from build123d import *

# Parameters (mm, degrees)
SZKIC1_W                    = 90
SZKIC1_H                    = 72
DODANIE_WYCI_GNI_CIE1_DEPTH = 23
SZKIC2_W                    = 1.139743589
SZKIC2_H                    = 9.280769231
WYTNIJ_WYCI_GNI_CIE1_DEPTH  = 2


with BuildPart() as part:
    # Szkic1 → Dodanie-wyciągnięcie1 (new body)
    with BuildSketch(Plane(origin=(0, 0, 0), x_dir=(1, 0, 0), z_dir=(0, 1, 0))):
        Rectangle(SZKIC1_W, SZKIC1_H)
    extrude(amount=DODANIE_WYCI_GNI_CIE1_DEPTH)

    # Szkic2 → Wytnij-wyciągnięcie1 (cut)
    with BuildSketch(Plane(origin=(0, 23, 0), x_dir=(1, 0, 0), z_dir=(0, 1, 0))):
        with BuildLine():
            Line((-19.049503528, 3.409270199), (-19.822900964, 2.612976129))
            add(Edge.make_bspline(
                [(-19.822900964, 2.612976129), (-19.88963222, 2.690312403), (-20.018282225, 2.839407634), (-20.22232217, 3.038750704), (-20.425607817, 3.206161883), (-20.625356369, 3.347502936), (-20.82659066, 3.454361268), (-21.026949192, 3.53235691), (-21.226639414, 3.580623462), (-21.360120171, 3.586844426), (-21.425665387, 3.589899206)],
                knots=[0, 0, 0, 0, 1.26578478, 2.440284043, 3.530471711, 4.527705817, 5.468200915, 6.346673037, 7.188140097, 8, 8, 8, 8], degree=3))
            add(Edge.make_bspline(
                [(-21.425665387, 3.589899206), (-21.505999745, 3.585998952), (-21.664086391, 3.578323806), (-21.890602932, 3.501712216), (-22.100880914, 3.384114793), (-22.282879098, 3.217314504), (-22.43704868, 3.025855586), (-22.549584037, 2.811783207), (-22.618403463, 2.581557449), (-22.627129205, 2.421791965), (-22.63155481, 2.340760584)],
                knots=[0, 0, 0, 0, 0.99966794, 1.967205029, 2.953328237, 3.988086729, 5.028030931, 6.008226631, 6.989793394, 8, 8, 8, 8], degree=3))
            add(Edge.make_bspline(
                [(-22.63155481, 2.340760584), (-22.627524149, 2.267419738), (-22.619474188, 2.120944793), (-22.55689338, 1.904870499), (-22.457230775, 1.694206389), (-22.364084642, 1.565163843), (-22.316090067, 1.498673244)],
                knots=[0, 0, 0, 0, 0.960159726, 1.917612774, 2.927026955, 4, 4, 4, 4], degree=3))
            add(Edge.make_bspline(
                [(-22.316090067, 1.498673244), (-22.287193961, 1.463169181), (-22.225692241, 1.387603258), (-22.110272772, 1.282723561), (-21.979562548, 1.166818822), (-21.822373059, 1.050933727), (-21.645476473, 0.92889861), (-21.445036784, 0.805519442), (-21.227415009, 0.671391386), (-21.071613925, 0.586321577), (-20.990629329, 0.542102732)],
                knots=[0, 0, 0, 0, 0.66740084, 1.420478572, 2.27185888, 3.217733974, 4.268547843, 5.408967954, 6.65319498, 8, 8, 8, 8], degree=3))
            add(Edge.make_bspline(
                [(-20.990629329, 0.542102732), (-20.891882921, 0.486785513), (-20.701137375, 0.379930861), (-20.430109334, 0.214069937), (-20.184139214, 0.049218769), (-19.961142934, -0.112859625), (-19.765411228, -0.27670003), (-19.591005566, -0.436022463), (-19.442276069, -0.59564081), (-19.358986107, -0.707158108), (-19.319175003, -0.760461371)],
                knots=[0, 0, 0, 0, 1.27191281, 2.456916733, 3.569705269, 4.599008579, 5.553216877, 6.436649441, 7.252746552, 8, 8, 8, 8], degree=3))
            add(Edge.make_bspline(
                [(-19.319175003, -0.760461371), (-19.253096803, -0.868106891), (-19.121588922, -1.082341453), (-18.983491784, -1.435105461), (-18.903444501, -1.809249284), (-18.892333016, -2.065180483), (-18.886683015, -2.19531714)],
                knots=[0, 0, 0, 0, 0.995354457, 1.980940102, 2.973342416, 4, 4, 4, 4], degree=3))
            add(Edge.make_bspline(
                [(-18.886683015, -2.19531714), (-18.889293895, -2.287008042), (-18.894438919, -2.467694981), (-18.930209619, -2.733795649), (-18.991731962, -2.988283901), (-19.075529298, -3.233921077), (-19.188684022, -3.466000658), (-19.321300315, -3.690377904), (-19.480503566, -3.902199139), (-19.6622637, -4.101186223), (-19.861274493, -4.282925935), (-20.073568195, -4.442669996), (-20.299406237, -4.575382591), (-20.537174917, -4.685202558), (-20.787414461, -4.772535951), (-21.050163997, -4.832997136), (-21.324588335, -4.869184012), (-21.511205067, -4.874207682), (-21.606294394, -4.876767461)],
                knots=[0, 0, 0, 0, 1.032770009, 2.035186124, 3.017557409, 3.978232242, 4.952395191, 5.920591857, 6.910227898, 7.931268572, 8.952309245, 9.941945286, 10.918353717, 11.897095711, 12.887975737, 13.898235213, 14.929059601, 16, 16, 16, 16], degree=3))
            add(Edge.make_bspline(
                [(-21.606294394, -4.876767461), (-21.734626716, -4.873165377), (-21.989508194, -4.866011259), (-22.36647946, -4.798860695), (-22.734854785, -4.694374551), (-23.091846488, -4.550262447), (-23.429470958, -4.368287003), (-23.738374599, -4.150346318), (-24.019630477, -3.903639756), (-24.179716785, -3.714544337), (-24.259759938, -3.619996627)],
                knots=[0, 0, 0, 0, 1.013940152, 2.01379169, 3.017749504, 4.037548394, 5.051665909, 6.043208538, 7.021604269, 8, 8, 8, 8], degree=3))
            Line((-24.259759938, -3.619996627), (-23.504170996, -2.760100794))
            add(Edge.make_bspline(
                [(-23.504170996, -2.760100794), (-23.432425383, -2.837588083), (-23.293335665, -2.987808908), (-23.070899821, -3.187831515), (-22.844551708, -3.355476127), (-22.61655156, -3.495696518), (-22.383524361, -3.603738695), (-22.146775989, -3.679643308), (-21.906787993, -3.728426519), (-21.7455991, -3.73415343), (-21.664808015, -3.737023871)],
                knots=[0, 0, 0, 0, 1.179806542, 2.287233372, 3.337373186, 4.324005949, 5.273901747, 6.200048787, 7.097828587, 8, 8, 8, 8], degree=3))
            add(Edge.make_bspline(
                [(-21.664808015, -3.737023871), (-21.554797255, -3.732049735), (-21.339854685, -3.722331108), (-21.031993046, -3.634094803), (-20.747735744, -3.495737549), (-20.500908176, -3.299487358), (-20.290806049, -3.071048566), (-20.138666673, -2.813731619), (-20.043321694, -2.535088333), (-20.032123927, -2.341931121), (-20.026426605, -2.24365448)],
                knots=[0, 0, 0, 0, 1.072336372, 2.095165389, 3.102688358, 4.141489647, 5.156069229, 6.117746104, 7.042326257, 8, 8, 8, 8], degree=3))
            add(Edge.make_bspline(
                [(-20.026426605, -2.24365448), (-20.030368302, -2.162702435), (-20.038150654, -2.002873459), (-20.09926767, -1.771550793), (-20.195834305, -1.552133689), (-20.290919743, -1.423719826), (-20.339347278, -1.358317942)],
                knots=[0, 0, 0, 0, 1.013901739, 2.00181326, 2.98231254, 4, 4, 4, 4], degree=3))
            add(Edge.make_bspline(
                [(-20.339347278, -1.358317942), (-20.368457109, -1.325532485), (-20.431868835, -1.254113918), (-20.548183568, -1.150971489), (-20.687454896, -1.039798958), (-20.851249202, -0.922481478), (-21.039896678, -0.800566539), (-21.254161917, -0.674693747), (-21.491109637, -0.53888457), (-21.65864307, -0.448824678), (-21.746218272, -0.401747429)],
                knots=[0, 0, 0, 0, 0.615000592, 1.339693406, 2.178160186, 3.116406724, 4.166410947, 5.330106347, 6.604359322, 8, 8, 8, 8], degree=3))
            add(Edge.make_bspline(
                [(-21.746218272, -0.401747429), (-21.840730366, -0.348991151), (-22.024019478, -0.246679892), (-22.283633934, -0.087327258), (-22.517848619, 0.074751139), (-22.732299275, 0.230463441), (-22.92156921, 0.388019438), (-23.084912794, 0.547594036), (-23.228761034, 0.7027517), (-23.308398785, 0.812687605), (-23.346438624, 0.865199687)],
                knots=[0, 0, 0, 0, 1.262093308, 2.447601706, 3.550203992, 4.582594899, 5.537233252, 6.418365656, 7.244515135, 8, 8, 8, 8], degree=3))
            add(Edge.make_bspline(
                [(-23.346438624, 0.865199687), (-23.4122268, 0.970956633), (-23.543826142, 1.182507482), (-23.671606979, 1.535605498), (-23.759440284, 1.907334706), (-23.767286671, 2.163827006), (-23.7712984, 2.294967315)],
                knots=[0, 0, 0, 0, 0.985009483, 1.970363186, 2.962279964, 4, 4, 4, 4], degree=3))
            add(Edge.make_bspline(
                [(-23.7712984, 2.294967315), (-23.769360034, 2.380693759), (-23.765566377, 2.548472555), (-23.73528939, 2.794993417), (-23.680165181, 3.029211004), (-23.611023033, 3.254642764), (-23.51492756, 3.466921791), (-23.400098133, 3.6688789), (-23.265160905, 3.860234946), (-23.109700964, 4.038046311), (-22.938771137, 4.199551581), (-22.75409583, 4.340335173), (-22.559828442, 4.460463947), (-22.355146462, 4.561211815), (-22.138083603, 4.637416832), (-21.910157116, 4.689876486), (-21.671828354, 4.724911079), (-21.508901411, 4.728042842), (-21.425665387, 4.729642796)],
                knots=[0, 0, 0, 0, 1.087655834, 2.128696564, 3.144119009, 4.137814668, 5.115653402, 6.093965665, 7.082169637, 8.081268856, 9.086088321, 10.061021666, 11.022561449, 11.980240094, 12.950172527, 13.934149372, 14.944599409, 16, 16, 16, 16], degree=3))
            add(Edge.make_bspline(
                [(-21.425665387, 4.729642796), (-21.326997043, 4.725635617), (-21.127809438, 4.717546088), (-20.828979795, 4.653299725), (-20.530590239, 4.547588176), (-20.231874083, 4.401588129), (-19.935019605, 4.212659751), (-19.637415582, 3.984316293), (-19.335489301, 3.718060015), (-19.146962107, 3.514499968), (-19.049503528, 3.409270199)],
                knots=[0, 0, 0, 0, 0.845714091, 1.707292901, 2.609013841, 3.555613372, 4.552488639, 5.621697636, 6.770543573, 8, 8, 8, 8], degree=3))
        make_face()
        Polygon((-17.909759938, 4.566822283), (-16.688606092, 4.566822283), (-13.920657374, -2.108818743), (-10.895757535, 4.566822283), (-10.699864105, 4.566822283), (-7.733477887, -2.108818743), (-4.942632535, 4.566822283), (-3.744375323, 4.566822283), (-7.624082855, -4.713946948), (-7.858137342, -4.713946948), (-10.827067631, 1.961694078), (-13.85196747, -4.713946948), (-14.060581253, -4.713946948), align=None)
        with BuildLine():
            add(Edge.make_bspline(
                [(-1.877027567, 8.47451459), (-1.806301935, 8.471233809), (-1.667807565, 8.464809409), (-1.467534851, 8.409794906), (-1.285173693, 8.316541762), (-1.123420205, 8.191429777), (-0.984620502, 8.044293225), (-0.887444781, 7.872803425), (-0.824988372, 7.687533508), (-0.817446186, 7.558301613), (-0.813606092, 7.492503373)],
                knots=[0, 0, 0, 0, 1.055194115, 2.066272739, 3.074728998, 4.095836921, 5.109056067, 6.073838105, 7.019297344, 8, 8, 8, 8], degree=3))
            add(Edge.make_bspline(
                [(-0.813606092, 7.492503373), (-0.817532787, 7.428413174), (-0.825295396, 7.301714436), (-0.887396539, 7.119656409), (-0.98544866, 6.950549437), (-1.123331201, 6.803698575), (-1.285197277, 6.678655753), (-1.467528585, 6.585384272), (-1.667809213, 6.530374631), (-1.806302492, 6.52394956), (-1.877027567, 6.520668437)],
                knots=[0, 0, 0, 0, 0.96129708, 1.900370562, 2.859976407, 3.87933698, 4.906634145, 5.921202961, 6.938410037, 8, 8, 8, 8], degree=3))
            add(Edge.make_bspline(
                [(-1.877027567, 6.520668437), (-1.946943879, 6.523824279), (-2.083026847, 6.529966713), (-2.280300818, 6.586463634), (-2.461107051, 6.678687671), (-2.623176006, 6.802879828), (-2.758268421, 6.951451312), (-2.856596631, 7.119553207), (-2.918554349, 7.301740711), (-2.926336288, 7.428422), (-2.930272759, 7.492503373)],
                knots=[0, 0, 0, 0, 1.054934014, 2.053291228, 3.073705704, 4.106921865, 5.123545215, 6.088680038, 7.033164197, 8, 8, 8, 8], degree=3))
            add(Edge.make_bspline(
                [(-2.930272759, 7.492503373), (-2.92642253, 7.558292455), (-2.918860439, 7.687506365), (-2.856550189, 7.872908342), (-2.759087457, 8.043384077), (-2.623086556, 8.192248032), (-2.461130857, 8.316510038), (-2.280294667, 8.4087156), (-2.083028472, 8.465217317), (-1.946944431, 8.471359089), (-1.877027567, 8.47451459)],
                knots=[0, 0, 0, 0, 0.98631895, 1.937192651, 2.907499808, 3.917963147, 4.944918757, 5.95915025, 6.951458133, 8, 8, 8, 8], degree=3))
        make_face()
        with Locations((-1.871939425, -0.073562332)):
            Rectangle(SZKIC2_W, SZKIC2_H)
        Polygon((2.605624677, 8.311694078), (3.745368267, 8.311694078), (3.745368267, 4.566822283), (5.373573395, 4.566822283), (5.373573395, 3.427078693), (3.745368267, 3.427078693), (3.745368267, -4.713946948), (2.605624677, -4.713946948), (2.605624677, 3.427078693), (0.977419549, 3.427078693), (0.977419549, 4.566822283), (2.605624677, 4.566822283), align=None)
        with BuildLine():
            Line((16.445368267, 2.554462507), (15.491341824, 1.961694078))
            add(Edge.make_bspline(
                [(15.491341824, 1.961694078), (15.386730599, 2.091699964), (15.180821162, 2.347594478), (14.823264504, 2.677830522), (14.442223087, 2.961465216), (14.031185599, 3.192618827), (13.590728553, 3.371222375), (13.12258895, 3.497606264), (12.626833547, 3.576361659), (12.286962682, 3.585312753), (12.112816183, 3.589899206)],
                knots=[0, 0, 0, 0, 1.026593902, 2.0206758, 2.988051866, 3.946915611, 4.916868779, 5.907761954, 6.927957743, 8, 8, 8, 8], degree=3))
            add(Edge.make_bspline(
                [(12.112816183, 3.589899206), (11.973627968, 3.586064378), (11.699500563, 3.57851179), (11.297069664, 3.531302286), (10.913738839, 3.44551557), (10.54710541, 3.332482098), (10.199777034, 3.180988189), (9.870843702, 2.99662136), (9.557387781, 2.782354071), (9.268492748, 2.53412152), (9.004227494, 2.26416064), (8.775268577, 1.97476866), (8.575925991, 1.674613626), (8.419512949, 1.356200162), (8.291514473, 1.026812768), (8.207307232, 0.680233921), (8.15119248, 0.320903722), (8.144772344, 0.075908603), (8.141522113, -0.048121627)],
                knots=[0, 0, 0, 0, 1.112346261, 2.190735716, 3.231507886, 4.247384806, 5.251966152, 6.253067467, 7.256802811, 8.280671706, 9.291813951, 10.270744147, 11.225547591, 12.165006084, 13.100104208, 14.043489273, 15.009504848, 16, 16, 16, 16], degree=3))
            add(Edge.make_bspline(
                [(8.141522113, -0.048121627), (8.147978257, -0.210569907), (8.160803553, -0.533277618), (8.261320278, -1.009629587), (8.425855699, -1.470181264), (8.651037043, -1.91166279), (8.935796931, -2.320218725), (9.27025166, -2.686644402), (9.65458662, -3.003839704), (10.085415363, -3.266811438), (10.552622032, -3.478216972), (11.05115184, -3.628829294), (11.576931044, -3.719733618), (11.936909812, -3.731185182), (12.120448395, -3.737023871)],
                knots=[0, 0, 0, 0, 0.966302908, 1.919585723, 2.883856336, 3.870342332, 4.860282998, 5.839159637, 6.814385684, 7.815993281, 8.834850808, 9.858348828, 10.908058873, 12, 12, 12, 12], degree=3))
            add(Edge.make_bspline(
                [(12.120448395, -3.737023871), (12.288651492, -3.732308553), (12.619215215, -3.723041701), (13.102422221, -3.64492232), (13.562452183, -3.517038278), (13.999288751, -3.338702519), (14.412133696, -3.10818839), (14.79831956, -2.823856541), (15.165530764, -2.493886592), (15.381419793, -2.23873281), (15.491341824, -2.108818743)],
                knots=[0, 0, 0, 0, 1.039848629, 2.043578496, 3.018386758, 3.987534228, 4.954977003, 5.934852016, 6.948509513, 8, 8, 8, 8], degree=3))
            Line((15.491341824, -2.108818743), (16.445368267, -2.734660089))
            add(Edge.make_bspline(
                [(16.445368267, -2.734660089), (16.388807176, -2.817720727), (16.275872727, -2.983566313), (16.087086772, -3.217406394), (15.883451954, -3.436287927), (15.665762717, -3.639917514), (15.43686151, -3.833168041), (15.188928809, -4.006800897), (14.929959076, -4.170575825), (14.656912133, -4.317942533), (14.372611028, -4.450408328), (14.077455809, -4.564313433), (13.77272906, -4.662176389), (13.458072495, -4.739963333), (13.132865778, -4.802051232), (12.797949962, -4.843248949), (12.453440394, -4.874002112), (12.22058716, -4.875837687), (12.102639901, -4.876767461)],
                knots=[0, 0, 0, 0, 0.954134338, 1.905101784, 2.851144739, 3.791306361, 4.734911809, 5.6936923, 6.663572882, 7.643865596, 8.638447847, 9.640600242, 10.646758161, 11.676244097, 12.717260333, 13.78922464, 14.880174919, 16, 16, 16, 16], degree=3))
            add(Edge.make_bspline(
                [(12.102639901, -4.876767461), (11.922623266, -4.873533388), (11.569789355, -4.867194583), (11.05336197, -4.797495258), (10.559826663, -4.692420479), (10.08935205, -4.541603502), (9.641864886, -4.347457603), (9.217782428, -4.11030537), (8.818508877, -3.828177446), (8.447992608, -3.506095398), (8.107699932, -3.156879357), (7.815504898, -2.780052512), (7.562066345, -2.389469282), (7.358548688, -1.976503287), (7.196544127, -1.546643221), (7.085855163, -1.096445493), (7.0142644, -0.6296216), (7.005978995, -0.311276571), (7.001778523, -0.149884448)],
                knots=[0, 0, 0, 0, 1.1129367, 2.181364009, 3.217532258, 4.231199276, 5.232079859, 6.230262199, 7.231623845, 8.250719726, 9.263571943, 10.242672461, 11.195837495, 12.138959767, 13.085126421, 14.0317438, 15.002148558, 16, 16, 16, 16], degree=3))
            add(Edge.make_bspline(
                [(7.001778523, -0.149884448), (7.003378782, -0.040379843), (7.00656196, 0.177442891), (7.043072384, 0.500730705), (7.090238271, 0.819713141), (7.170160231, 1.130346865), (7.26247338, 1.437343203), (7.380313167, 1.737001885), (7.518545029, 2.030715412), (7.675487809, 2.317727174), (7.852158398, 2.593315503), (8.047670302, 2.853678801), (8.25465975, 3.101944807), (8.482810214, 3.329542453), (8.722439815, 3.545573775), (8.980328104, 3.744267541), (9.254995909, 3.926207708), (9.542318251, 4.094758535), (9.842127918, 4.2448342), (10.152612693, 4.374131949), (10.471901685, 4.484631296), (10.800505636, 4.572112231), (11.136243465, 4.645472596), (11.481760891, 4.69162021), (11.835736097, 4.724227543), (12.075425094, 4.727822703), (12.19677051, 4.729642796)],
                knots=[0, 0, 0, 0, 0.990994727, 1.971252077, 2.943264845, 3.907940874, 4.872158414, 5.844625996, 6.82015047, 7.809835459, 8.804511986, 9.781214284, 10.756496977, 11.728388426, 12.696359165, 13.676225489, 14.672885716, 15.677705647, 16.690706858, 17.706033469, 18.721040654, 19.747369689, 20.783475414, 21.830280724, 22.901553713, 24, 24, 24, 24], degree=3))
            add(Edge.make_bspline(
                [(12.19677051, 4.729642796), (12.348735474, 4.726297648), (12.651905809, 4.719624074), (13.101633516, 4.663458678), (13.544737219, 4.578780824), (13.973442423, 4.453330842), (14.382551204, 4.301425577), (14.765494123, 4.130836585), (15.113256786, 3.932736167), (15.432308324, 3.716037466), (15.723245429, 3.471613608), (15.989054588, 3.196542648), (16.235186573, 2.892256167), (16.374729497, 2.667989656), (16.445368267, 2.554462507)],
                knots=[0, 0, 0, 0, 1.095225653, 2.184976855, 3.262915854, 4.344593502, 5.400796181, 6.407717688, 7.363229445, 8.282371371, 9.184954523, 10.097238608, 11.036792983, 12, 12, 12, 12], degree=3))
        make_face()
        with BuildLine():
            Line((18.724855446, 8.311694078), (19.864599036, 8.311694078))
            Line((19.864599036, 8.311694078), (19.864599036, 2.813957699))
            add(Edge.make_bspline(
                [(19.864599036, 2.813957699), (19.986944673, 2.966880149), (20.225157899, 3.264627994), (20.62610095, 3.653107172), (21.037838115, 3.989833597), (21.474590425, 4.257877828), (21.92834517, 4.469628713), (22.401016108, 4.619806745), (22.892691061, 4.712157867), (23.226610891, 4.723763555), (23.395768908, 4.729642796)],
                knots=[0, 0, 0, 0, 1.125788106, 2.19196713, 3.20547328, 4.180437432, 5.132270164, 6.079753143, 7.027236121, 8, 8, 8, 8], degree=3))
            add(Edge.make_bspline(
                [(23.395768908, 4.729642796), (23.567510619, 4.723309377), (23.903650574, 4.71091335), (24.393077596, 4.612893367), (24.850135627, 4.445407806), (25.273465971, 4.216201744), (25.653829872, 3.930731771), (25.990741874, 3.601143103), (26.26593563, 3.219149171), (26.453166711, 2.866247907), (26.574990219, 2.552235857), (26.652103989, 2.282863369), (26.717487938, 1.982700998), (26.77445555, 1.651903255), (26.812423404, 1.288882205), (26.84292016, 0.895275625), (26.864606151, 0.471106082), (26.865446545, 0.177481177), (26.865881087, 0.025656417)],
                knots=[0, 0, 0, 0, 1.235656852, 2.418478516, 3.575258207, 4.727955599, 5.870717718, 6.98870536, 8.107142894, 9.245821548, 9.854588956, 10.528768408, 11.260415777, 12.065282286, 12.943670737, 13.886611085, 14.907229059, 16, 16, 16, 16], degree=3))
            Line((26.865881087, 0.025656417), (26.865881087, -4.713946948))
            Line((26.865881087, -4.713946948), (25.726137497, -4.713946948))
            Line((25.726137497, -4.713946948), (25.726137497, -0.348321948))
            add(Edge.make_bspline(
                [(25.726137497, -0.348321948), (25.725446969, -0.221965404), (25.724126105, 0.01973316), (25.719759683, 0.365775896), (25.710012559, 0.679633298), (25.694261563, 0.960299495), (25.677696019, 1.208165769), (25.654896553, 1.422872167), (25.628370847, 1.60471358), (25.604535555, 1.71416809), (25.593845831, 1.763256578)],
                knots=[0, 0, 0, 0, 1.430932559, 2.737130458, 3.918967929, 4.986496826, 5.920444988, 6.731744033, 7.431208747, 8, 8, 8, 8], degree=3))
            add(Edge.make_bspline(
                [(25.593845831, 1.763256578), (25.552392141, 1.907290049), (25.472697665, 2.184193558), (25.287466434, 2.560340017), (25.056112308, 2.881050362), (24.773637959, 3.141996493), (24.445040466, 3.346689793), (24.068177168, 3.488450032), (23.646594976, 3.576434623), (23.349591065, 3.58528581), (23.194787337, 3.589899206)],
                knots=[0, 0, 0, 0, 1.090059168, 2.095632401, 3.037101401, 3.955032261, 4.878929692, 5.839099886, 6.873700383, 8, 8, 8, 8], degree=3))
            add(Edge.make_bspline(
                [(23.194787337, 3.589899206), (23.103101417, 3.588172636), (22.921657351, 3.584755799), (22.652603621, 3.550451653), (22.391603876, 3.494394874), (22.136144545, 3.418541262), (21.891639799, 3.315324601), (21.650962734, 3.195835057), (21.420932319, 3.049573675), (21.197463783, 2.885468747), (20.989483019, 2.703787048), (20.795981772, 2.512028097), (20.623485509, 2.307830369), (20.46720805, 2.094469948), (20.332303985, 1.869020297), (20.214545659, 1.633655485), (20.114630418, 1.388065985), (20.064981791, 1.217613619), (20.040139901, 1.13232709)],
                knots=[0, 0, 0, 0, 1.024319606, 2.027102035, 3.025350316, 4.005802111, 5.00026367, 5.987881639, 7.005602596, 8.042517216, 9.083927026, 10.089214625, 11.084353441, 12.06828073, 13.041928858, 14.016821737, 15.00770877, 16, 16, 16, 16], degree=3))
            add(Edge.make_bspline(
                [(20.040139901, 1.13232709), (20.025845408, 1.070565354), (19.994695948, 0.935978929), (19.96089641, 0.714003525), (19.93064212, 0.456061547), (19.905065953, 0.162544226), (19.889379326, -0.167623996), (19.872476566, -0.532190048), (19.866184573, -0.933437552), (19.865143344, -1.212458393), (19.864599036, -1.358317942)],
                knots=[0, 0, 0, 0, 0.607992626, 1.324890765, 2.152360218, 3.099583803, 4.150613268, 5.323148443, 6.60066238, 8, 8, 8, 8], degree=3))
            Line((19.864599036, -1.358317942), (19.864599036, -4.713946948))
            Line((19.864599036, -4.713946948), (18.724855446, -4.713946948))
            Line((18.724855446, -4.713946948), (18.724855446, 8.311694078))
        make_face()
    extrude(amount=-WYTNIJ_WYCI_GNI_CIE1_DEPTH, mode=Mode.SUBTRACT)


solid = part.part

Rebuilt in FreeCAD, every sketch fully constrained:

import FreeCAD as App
import Part
import Sketcher

V = App.Vector
Q = App.Units.Quantity


def add_polygon(sketch, points):
    """Adds a closed chain of lines whose ends are joined by coincident constraints."""
    first, n = sketch.GeometryCount, len(points)
    for a, b in zip(points, points[1:] + points[:1]):
        sketch.addGeometry(Part.LineSegment(App.Vector(*a, 0), App.Vector(*b, 0)), False)
    for i in range(n):
        sketch.addConstraint(Sketcher.Constraint("Coincident", first + i, 2, first + (i + 1) % n, 1))

doc = App.newDocument("Part")
body = doc.addObject("PartDesign::Body", "Body")

sketch1 = doc.addObject("Sketcher::SketchObject", "Sketch")
body.addObject(sketch1)
sketch1.AttachmentSupport = (doc.XZ_Plane, [""])
sketch1.MapMode = "FlatFace"
add_polygon(sketch1, [(-45, -36), (-45, 36), (45, 36), (45, -36)])
sketch1.addConstraint(Sketcher.Constraint("Vertical", 0))
sketch1.addConstraint(Sketcher.Constraint("Horizontal", 1))
sketch1.addConstraint(Sketcher.Constraint("Vertical", 2))
sketch1.addConstraint(Sketcher.Constraint("Horizontal", 3))
sketch1.addConstraint(Sketcher.Constraint("Symmetric", 0, 2, 2, 2, -1, 1))
sketch1.addConstraint(Sketcher.Constraint("DistanceX", 1, 1, 1, 2, Q("90 mm")))
sketch1.addConstraint(Sketcher.Constraint("DistanceY", 0, 1, 0, 2, Q("72 mm")))
pad1 = doc.addObject("PartDesign::Pad", "Pad")
body.addObject(pad1)
pad1.Profile = sketch1
pad1.Length = 23
pad1.Reversed = True

sketch2 = doc.addObject("Sketcher::SketchObject", "Sketch001")
body.addObject(sketch2)
sketch2.AttachmentSupport = (doc.XZ_Plane, [""])
sketch2.MapMode = "FlatFace"
sketch2.AttachmentOffset = App.Placement(V(0, 0, -23), App.Rotation())
sketch2.addGeometry(Part.LineSegment(V(-19.822901, -2.612976, 0), V(-19.049504, -3.40927, 0)), False)
sketch2.addGeometry(Part.BSplineCurve([V(-21.425665, -4.729643, 0), V(-21.326997, -4.725636, 0), V(-21.127809, -4.717546, 0), V(-20.82898, -4.6533, 0), V(-20.53059, -4.547588, 0), V(-20.231874, -4.401588, 0), V(-19.93502, -4.21266, 0), V(-19.637416, -3.984316, 0), V(-19.335489, -3.71806, 0), V(-19.146962, -3.5145, 0), V(-19.049504, -3.40927, 0)], [4, 1, 1, 1, 1, 1, 1, 1, 4], [0, 0.845714091, 1.707292901, 2.609013841, 3.555613372, 4.552488639, 5.621697636, 6.770543573, 8], False, 3, [1, 1, 1, 1, 1, 1, 1, 1, 1, 1, 1], False), False)
sketch2.addGeometry(Part.BSplineCurve([V(-23.771298, -2.294967, 0), V(-23.76936, -2.380694, 0), V(-23.765566, -2.548473, 0), V(-23.735289, -2.794993, 0), V(-23.680165, -3.029211, 0), V(-23.611023, -3.254643, 0), V(-23.514928, -3.466922, 0), V(-23.400098, -3.668879, 0), V(-23.265161, -3.860235, 0), V(-23.109701, -4.038046, 0), V(-22.938771, -4.199552, 0), V(-22.754096, -4.340335, 0), V(-22.559828, -4.460464, 0), V(-22.355146, -4.561212, 0), V(-22.138084, -4.637417, 0), V(-21.910157, -4.689876, 0), V(-21.671828, -4.724911, 0), V(-21.508901, -4.728043, 0), V(-21.425665, -4.729643, 0)], [4, 1, 1, 1, 1, 1, 1, 1, 1, 1, 1, 1, 1, 1, 1, 1, 4], [0, 1.087655834, 2.128696564, 3.144119009, 4.137814668, 5.115653402, 6.093965665, 7.082169637, 8.081268856, 9.086088321, 10.061021666, 11.022561449, 11.980240094, 12.950172527, 13.934149372, 14.944599409, 16], False, 3, [1, 1, 1, 1, 1, 1, 1, 1, 1, 1, 1, 1, 1, 1, 1, 1, 1, 1, 1], False), False)
sketch2.addGeometry(Part.BSplineCurve([V(-23.346439, -0.8652, 0), V(-23.412227, -0.970957, 0), V(-23.543826, -1.182507, 0), V(-23.671607, -1.535605, 0), V(-23.75944, -1.907335, 0), V(-23.767287, -2.163827, 0), V(-23.771298, -2.294967, 0)], [4, 1, 1, 1, 4], [0, 0.985009483, 1.970363186, 2.962279964, 4], False, 3, [1, 1, 1, 1, 1, 1, 1], False), False)
sketch2.addGeometry(Part.BSplineCurve([V(-21.746218, 0.401747, 0), V(-21.84073, 0.348991, 0), V(-22.024019, 0.24668, 0), V(-22.283634, 0.087327, 0), V(-22.517849, -0.074751, 0), V(-22.732299, -0.230463, 0), V(-22.921569, -0.388019, 0), V(-23.084913, -0.547594, 0), V(-23.228761, -0.702752, 0), V(-23.308399, -0.812688, 0), V(-23.346439, -0.8652, 0)], [4, 1, 1, 1, 1, 1, 1, 1, 4], [0, 1.262093308, 2.447601706, 3.550203992, 4.582594899, 5.537233252, 6.418365656, 7.244515135, 8], False, 3, [1, 1, 1, 1, 1, 1, 1, 1, 1, 1, 1], False), False)
sketch2.addGeometry(Part.BSplineCurve([V(-20.339347, 1.358318, 0), V(-20.368457, 1.325532, 0), V(-20.431869, 1.254114, 0), V(-20.548184, 1.150971, 0), V(-20.687455, 1.039799, 0), V(-20.851249, 0.922481, 0), V(-21.039897, 0.800567, 0), V(-21.254162, 0.674694, 0), V(-21.49111, 0.538885, 0), V(-21.658643, 0.448825, 0), V(-21.746218, 0.401747, 0)], [4, 1, 1, 1, 1, 1, 1, 1, 4], [0, 0.615000592, 1.339693406, 2.178160186, 3.116406724, 4.166410947, 5.330106347, 6.604359322, 8], False, 3, [1, 1, 1, 1, 1, 1, 1, 1, 1, 1, 1], False), False)
sketch2.addGeometry(Part.BSplineCurve([V(-20.026427, 2.243654, 0), V(-20.030368, 2.162702, 0), V(-20.038151, 2.002873, 0), V(-20.099268, 1.771551, 0), V(-20.195834, 1.552134, 0), V(-20.29092, 1.42372, 0), V(-20.339347, 1.358318, 0)], [4, 1, 1, 1, 4], [0, 1.013901739, 2.00181326, 2.98231254, 4], False, 3, [1, 1, 1, 1, 1, 1, 1], False), False)
sketch2.addGeometry(Part.BSplineCurve([V(-21.664808, 3.737024, 0), V(-21.554797, 3.73205, 0), V(-21.339855, 3.722331, 0), V(-21.031993, 3.634095, 0), V(-20.747736, 3.495738, 0), V(-20.500908, 3.299487, 0), V(-20.290806, 3.071049, 0), V(-20.138667, 2.813732, 0), V(-20.043322, 2.535088, 0), V(-20.032124, 2.341931, 0), V(-20.026427, 2.243654, 0)], [4, 1, 1, 1, 1, 1, 1, 1, 4], [0, 1.072336372, 2.095165389, 3.102688358, 4.141489647, 5.156069229, 6.117746104, 7.042326257, 8], False, 3, [1, 1, 1, 1, 1, 1, 1, 1, 1, 1, 1], False), False)
sketch2.addGeometry(Part.BSplineCurve([V(-23.504171, 2.760101, 0), V(-23.432425, 2.837588, 0), V(-23.293336, 2.987809, 0), V(-23.0709, 3.187832, 0), V(-22.844552, 3.355476, 0), V(-22.616552, 3.495697, 0), V(-22.383524, 3.603739, 0), V(-22.146776, 3.679643, 0), V(-21.906788, 3.728427, 0), V(-21.745599, 3.734153, 0), V(-21.664808, 3.737024, 0)], [4, 1, 1, 1, 1, 1, 1, 1, 4], [0, 1.179806542, 2.287233372, 3.337373186, 4.324005949, 5.273901747, 6.200048787, 7.097828587, 8], False, 3, [1, 1, 1, 1, 1, 1, 1, 1, 1, 1, 1], False), False)
sketch2.addGeometry(Part.LineSegment(V(-23.504171, 2.760101, 0), V(-24.25976, 3.619997, 0)), False)
sketch2.addGeometry(Part.BSplineCurve([V(-21.606294, 4.876767, 0), V(-21.734627, 4.873165, 0), V(-21.989508, 4.866011, 0), V(-22.366479, 4.798861, 0), V(-22.734855, 4.694375, 0), V(-23.091846, 4.550262, 0), V(-23.429471, 4.368287, 0), V(-23.738375, 4.150346, 0), V(-24.01963, 3.90364, 0), V(-24.179717, 3.714544, 0), V(-24.25976, 3.619997, 0)], [4, 1, 1, 1, 1, 1, 1, 1, 4], [0, 1.013940152, 2.01379169, 3.017749504, 4.037548394, 5.051665909, 6.043208538, 7.021604269, 8], False, 3, [1, 1, 1, 1, 1, 1, 1, 1, 1, 1, 1], False), False)
sketch2.addGeometry(Part.BSplineCurve([V(-18.886683, 2.195317, 0), V(-18.889294, 2.287008, 0), V(-18.894439, 2.467695, 0), V(-18.93021, 2.733796, 0), V(-18.991732, 2.988284, 0), V(-19.075529, 3.233921, 0), V(-19.188684, 3.466001, 0), V(-19.3213, 3.690378, 0), V(-19.480504, 3.902199, 0), V(-19.662264, 4.101186, 0), V(-19.861274, 4.282926, 0), V(-20.073568, 4.44267, 0), V(-20.299406, 4.575383, 0), V(-20.537175, 4.685203, 0), V(-20.787414, 4.772536, 0), V(-21.050164, 4.832997, 0), V(-21.324588, 4.869184, 0), V(-21.511205, 4.874208, 0), V(-21.606294, 4.876767, 0)], [4, 1, 1, 1, 1, 1, 1, 1, 1, 1, 1, 1, 1, 1, 1, 1, 4], [0, 1.032770009, 2.035186124, 3.017557409, 3.978232242, 4.952395191, 5.920591857, 6.910227898, 7.931268572, 8.952309245, 9.941945286, 10.918353717, 11.897095711, 12.887975737, 13.898235213, 14.929059601, 16], False, 3, [1, 1, 1, 1, 1, 1, 1, 1, 1, 1, 1, 1, 1, 1, 1, 1, 1, 1, 1], False), False)
sketch2.addGeometry(Part.BSplineCurve([V(-19.319175, 0.760461, 0), V(-19.253097, 0.868107, 0), V(-19.121589, 1.082341, 0), V(-18.983492, 1.435105, 0), V(-18.903445, 1.809249, 0), V(-18.892333, 2.06518, 0), V(-18.886683, 2.195317, 0)], [4, 1, 1, 1, 4], [0, 0.995354457, 1.980940102, 2.973342416, 4], False, 3, [1, 1, 1, 1, 1, 1, 1], False), False)
sketch2.addGeometry(Part.BSplineCurve([V(-20.990629, -0.542103, 0), V(-20.891883, -0.486786, 0), V(-20.701137, -0.379931, 0), V(-20.430109, -0.21407, 0), V(-20.184139, -0.049219, 0), V(-19.961143, 0.11286, 0), V(-19.765411, 0.2767, 0), V(-19.591006, 0.436022, 0), V(-19.442276, 0.595641, 0), V(-19.358986, 0.707158, 0), V(-19.319175, 0.760461, 0)], [4, 1, 1, 1, 1, 1, 1, 1, 4], [0, 1.27191281, 2.456916733, 3.569705269, 4.599008579, 5.553216877, 6.436649441, 7.252746552, 8], False, 3, [1, 1, 1, 1, 1, 1, 1, 1, 1, 1, 1], False), False)
sketch2.addGeometry(Part.BSplineCurve([V(-22.31609, -1.498673, 0), V(-22.287194, -1.463169, 0), V(-22.225692, -1.387603, 0), V(-22.110273, -1.282724, 0), V(-21.979563, -1.166819, 0), V(-21.822373, -1.050934, 0), V(-21.645476, -0.928899, 0), V(-21.445037, -0.805519, 0), V(-21.227415, -0.671391, 0), V(-21.071614, -0.586322, 0), V(-20.990629, -0.542103, 0)], [4, 1, 1, 1, 1, 1, 1, 1, 4], [0, 0.66740084, 1.420478572, 2.27185888, 3.217733974, 4.268547843, 5.408967954, 6.65319498, 8], False, 3, [1, 1, 1, 1, 1, 1, 1, 1, 1, 1, 1], False), False)
sketch2.addGeometry(Part.BSplineCurve([V(-22.631555, -2.340761, 0), V(-22.627524, -2.26742, 0), V(-22.619474, -2.120945, 0), V(-22.556893, -1.90487, 0), V(-22.457231, -1.694206, 0), V(-22.364085, -1.565164, 0), V(-22.31609, -1.498673, 0)], [4, 1, 1, 1, 4], [0, 0.960159726, 1.917612774, 2.927026955, 4], False, 3, [1, 1, 1, 1, 1, 1, 1], False), False)
sketch2.addGeometry(Part.BSplineCurve([V(-21.425665, -3.589899, 0), V(-21.506, -3.585999, 0), V(-21.664086, -3.578324, 0), V(-21.890603, -3.501712, 0), V(-22.100881, -3.384115, 0), V(-22.282879, -3.217315, 0), V(-22.437049, -3.025856, 0), V(-22.549584, -2.811783, 0), V(-22.618403, -2.581557, 0), V(-22.627129, -2.421792, 0), V(-22.631555, -2.340761, 0)], [4, 1, 1, 1, 1, 1, 1, 1, 4], [0, 0.99966794, 1.967205029, 2.953328237, 3.988086729, 5.028030931, 6.008226631, 6.989793394, 8], False, 3, [1, 1, 1, 1, 1, 1, 1, 1, 1, 1, 1], False), False)
sketch2.addGeometry(Part.BSplineCurve([V(-19.822901, -2.612976, 0), V(-19.889632, -2.690312, 0), V(-20.018282, -2.839408, 0), V(-20.222322, -3.038751, 0), V(-20.425608, -3.206162, 0), V(-20.625356, -3.347503, 0), V(-20.826591, -3.454361, 0), V(-21.026949, -3.532357, 0), V(-21.226639, -3.580623, 0), V(-21.36012, -3.586844, 0), V(-21.425665, -3.589899, 0)], [4, 1, 1, 1, 1, 1, 1, 1, 4], [0, 1.26578478, 2.440284043, 3.530471711, 4.527705817, 5.468200915, 6.346673037, 7.188140097, 8], False, 3, [1, 1, 1, 1, 1, 1, 1, 1, 1, 1, 1], False), False)
add_polygon(sketch2, [(-16.688606, -4.566822), (-17.90976, -4.566822), (-14.060581, 4.713947), (-13.851967, 4.713947), (-10.827068, -1.961694), (-7.858137, 4.713947), (-7.624083, 4.713947), (-3.744375, -4.566822), (-4.942633, -4.566822), (-7.733478, 2.108819), (-10.699864, -4.566822), (-10.895758, -4.566822), (-13.920657, 2.108819)])
sketch2.addGeometry(Part.BSplineCurve([V(-1.877028, -8.474515, 0), V(-1.806302, -8.471234, 0), V(-1.667808, -8.464809, 0), V(-1.467535, -8.409795, 0), V(-1.285174, -8.316542, 0), V(-1.12342, -8.19143, 0), V(-0.984621, -8.044293, 0), V(-0.887445, -7.872803, 0), V(-0.824988, -7.687534, 0), V(-0.817446, -7.558302, 0), V(-0.813606, -7.492503, 0)], [4, 1, 1, 1, 1, 1, 1, 1, 4], [0, 1.055194115, 2.066272739, 3.074728998, 4.095836921, 5.109056067, 6.073838105, 7.019297344, 8], False, 3, [1, 1, 1, 1, 1, 1, 1, 1, 1, 1, 1], False), False)
sketch2.addGeometry(Part.BSplineCurve([V(-2.930273, -7.492503, 0), V(-2.926423, -7.558292, 0), V(-2.91886, -7.687506, 0), V(-2.85655, -7.872908, 0), V(-2.759087, -8.043384, 0), V(-2.623087, -8.192248, 0), V(-2.461131, -8.31651, 0), V(-2.280295, -8.408716, 0), V(-2.083028, -8.465217, 0), V(-1.946944, -8.471359, 0), V(-1.877028, -8.474515, 0)], [4, 1, 1, 1, 1, 1, 1, 1, 4], [0, 0.98631895, 1.937192651, 2.907499808, 3.917963147, 4.944918757, 5.95915025, 6.951458133, 8], False, 3, [1, 1, 1, 1, 1, 1, 1, 1, 1, 1, 1], False), False)
sketch2.addGeometry(Part.BSplineCurve([V(-1.877028, -6.520668, 0), V(-1.946944, -6.523824, 0), V(-2.083027, -6.529967, 0), V(-2.280301, -6.586464, 0), V(-2.461107, -6.678688, 0), V(-2.623176, -6.80288, 0), V(-2.758268, -6.951451, 0), V(-2.856597, -7.119553, 0), V(-2.918554, -7.301741, 0), V(-2.926336, -7.428422, 0), V(-2.930273, -7.492503, 0)], [4, 1, 1, 1, 1, 1, 1, 1, 4], [0, 1.054934014, 2.053291228, 3.073705704, 4.106921865, 5.123545215, 6.088680038, 7.033164197, 8], False, 3, [1, 1, 1, 1, 1, 1, 1, 1, 1, 1, 1], False), False)
sketch2.addGeometry(Part.BSplineCurve([V(-0.813606, -7.492503, 0), V(-0.817533, -7.428413, 0), V(-0.825295, -7.301714, 0), V(-0.887397, -7.119656, 0), V(-0.985449, -6.950549, 0), V(-1.123331, -6.803699, 0), V(-1.285197, -6.678656, 0), V(-1.467529, -6.585384, 0), V(-1.667809, -6.530375, 0), V(-1.806302, -6.52395, 0), V(-1.877028, -6.520668, 0)], [4, 1, 1, 1, 1, 1, 1, 1, 4], [0, 0.96129708, 1.900370562, 2.859976407, 3.87933698, 4.906634145, 5.921202961, 6.938410037, 8], False, 3, [1, 1, 1, 1, 1, 1, 1, 1, 1, 1, 1], False), False)
add_polygon(sketch2, [(-2.441811, -4.566822), (-2.441811, 4.713947), (-1.302068, 4.713947), (-1.302068, -4.566822)])
add_polygon(sketch2, [(3.745368, -8.311694), (2.605625, -8.311694), (2.605625, -4.566822), (0.97742, -4.566822), (0.97742, -3.427079), (2.605625, -3.427079), (2.605625, 4.713947), (3.745368, 4.713947), (3.745368, -3.427079), (5.373573, -3.427079), (5.373573, -4.566822), (3.745368, -4.566822)])
sketch2.addGeometry(Part.LineSegment(V(15.491342, -1.961694, 0), V(16.445368, -2.554463, 0)), False)
sketch2.addGeometry(Part.BSplineCurve([V(12.196771, -4.729643, 0), V(12.348735, -4.726298, 0), V(12.651906, -4.719624, 0), V(13.101634, -4.663459, 0), V(13.544737, -4.578781, 0), V(13.973442, -4.453331, 0), V(14.382551, -4.301426, 0), V(14.765494, -4.130837, 0), V(15.113257, -3.932736, 0), V(15.432308, -3.716037, 0), V(15.723245, -3.471614, 0), V(15.989055, -3.196543, 0), V(16.235187, -2.892256, 0), V(16.374729, -2.66799, 0), V(16.445368, -2.554463, 0)], [4, 1, 1, 1, 1, 1, 1, 1, 1, 1, 1, 1, 4], [0, 1.095225653, 2.184976855, 3.262915854, 4.344593502, 5.400796181, 6.407717688, 7.363229445, 8.282371371, 9.184954523, 10.097238608, 11.036792983, 12], False, 3, [1, 1, 1, 1, 1, 1, 1, 1, 1, 1, 1, 1, 1, 1, 1], False), False)
sketch2.addGeometry(Part.BSplineCurve([V(7.001779, 0.149884, 0), V(7.003379, 0.04038, 0), V(7.006562, -0.177443, 0), V(7.043072, -0.500731, 0), V(7.090238, -0.819713, 0), V(7.17016, -1.130347, 0), V(7.262473, -1.437343, 0), V(7.380313, -1.737002, 0), V(7.518545, -2.030715, 0), V(7.675488, -2.317727, 0), V(7.852158, -2.593316, 0), V(8.04767, -2.853679, 0), V(8.25466, -3.101945, 0), V(8.48281, -3.329542, 0), V(8.72244, -3.545574, 0), V(8.980328, -3.744268, 0), V(9.254996, -3.926208, 0), V(9.542318, -4.094759, 0), V(9.842128, -4.244834, 0), V(10.152613, -4.374132, 0), V(10.471902, -4.484631, 0), V(10.800506, -4.572112, 0), V(11.136243, -4.645473, 0), V(11.481761, -4.69162, 0), V(11.835736, -4.724228, 0), V(12.075425, -4.727823, 0), V(12.196771, -4.729643, 0)], [4, 1, 1, 1, 1, 1, 1, 1, 1, 1, 1, 1, 1, 1, 1, 1, 1, 1, 1, 1, 1, 1, 1, 1, 4], [0, 0.990994727, 1.971252077, 2.943264845, 3.907940874, 4.872158414, 5.844625996, 6.82015047, 7.809835459, 8.804511986, 9.781214284, 10.756496977, 11.728388426, 12.696359165, 13.676225489, 14.672885716, 15.677705647, 16.690706858, 17.706033469, 18.721040654, 19.747369689, 20.783475414, 21.830280724, 22.901553713, 24], False, 3, [1, 1, 1, 1, 1, 1, 1, 1, 1, 1, 1, 1, 1, 1, 1, 1, 1, 1, 1, 1, 1, 1, 1, 1, 1, 1, 1], False), False)
sketch2.addGeometry(Part.BSplineCurve([V(12.10264, 4.876767, 0), V(11.922623, 4.873533, 0), V(11.569789, 4.867195, 0), V(11.053362, 4.797495, 0), V(10.559827, 4.69242, 0), V(10.089352, 4.541604, 0), V(9.641865, 4.347458, 0), V(9.217782, 4.110305, 0), V(8.818509, 3.828177, 0), V(8.447993, 3.506095, 0), V(8.1077, 3.156879, 0), V(7.815505, 2.780053, 0), V(7.562066, 2.389469, 0), V(7.358549, 1.976503, 0), V(7.196544, 1.546643, 0), V(7.085855, 1.096445, 0), V(7.014264, 0.629622, 0), V(7.005979, 0.311277, 0), V(7.001779, 0.149884, 0)], [4, 1, 1, 1, 1, 1, 1, 1, 1, 1, 1, 1, 1, 1, 1, 1, 4], [0, 1.1129367, 2.181364009, 3.217532258, 4.231199276, 5.232079859, 6.230262199, 7.231623845, 8.250719726, 9.263571943, 10.242672461, 11.195837495, 12.138959767, 13.085126421, 14.0317438, 15.002148558, 16], False, 3, [1, 1, 1, 1, 1, 1, 1, 1, 1, 1, 1, 1, 1, 1, 1, 1, 1, 1, 1], False), False)
sketch2.addGeometry(Part.BSplineCurve([V(16.445368, 2.73466, 0), V(16.388807, 2.817721, 0), V(16.275873, 2.983566, 0), V(16.087087, 3.217406, 0), V(15.883452, 3.436288, 0), V(15.665763, 3.639918, 0), V(15.436862, 3.833168, 0), V(15.188929, 4.006801, 0), V(14.929959, 4.170576, 0), V(14.656912, 4.317943, 0), V(14.372611, 4.450408, 0), V(14.077456, 4.564313, 0), V(13.772729, 4.662176, 0), V(13.458072, 4.739963, 0), V(13.132866, 4.802051, 0), V(12.79795, 4.843249, 0), V(12.45344, 4.874002, 0), V(12.220587, 4.875838, 0), V(12.10264, 4.876767, 0)], [4, 1, 1, 1, 1, 1, 1, 1, 1, 1, 1, 1, 1, 1, 1, 1, 4], [0, 0.954134338, 1.905101784, 2.851144739, 3.791306361, 4.734911809, 5.6936923, 6.663572882, 7.643865596, 8.638447847, 9.640600242, 10.646758161, 11.676244097, 12.717260333, 13.78922464, 14.880174919, 16], False, 3, [1, 1, 1, 1, 1, 1, 1, 1, 1, 1, 1, 1, 1, 1, 1, 1, 1, 1, 1], False), False)
sketch2.addGeometry(Part.LineSegment(V(16.445368, 2.73466, 0), V(15.491342, 2.108819, 0)), False)
sketch2.addGeometry(Part.BSplineCurve([V(12.120448, 3.737024, 0), V(12.288651, 3.732309, 0), V(12.619215, 3.723042, 0), V(13.102422, 3.644922, 0), V(13.562452, 3.517038, 0), V(13.999289, 3.338703, 0), V(14.412134, 3.108188, 0), V(14.79832, 2.823857, 0), V(15.165531, 2.493887, 0), V(15.38142, 2.238733, 0), V(15.491342, 2.108819, 0)], [4, 1, 1, 1, 1, 1, 1, 1, 4], [0, 1.039848629, 2.043578496, 3.018386758, 3.987534228, 4.954977003, 5.934852016, 6.948509513, 8], False, 3, [1, 1, 1, 1, 1, 1, 1, 1, 1, 1, 1], False), False)
sketch2.addGeometry(Part.BSplineCurve([V(8.141522, 0.048122, 0), V(8.147978, 0.21057, 0), V(8.160804, 0.533278, 0), V(8.26132, 1.00963, 0), V(8.425856, 1.470181, 0), V(8.651037, 1.911663, 0), V(8.935797, 2.320219, 0), V(9.270252, 2.686644, 0), V(9.654587, 3.00384, 0), V(10.085415, 3.266811, 0), V(10.552622, 3.478217, 0), V(11.051152, 3.628829, 0), V(11.576931, 3.719734, 0), V(11.93691, 3.731185, 0), V(12.120448, 3.737024, 0)], [4, 1, 1, 1, 1, 1, 1, 1, 1, 1, 1, 1, 4], [0, 0.966302908, 1.919585723, 2.883856336, 3.870342332, 4.860282998, 5.839159637, 6.814385684, 7.815993281, 8.834850808, 9.858348828, 10.908058873, 12], False, 3, [1, 1, 1, 1, 1, 1, 1, 1, 1, 1, 1, 1, 1, 1, 1], False), False)
sketch2.addGeometry(Part.BSplineCurve([V(12.112816, -3.589899, 0), V(11.973628, -3.586064, 0), V(11.699501, -3.578512, 0), V(11.29707, -3.531302, 0), V(10.913739, -3.445516, 0), V(10.547105, -3.332482, 0), V(10.199777, -3.180988, 0), V(9.870844, -2.996621, 0), V(9.557388, -2.782354, 0), V(9.268493, -2.534122, 0), V(9.004227, -2.264161, 0), V(8.775269, -1.974769, 0), V(8.575926, -1.674614, 0), V(8.419513, -1.3562, 0), V(8.291514, -1.026813, 0), V(8.207307, -0.680234, 0), V(8.151192, -0.320904, 0), V(8.144772, -0.075909, 0), V(8.141522, 0.048122, 0)], [4, 1, 1, 1, 1, 1, 1, 1, 1, 1, 1, 1, 1, 1, 1, 1, 4], [0, 1.112346261, 2.190735716, 3.231507886, 4.247384806, 5.251966152, 6.253067467, 7.256802811, 8.280671706, 9.291813951, 10.270744147, 11.225547591, 12.165006084, 13.100104208, 14.043489273, 15.009504848, 16], False, 3, [1, 1, 1, 1, 1, 1, 1, 1, 1, 1, 1, 1, 1, 1, 1, 1, 1, 1, 1], False), False)
sketch2.addGeometry(Part.BSplineCurve([V(15.491342, -1.961694, 0), V(15.386731, -2.0917, 0), V(15.180821, -2.347594, 0), V(14.823265, -2.677831, 0), V(14.442223, -2.961465, 0), V(14.031186, -3.192619, 0), V(13.590729, -3.371222, 0), V(13.122589, -3.497606, 0), V(12.626834, -3.576362, 0), V(12.286963, -3.585313, 0), V(12.112816, -3.589899, 0)], [4, 1, 1, 1, 1, 1, 1, 1, 4], [0, 1.026593902, 2.0206758, 2.988051866, 3.946915611, 4.916868779, 5.907761954, 6.927957743, 8], False, 3, [1, 1, 1, 1, 1, 1, 1, 1, 1, 1, 1], False), False)
sketch2.addGeometry(Part.LineSegment(V(19.864599, -8.311694, 0), V(18.724855, -8.311694, 0)), False)
sketch2.addGeometry(Part.LineSegment(V(18.724855, -8.311694, 0), V(18.724855, 4.713947, 0)), False)
sketch2.addGeometry(Part.LineSegment(V(18.724855, 4.713947, 0), V(19.864599, 4.713947, 0)), False)
sketch2.addGeometry(Part.LineSegment(V(19.864599, 4.713947, 0), V(19.864599, 1.358318, 0)), False)
sketch2.addGeometry(Part.BSplineCurve([V(20.04014, -1.132327, 0), V(20.025845, -1.070565, 0), V(19.994696, -0.935979, 0), V(19.960896, -0.714004, 0), V(19.930642, -0.456062, 0), V(19.905066, -0.162544, 0), V(19.889379, 0.167624, 0), V(19.872477, 0.53219, 0), V(19.866185, 0.933438, 0), V(19.865143, 1.212458, 0), V(19.864599, 1.358318, 0)], [4, 1, 1, 1, 1, 1, 1, 1, 4], [0, 0.607992626, 1.324890765, 2.152360218, 3.099583803, 4.150613268, 5.323148443, 6.60066238, 8], False, 3, [1, 1, 1, 1, 1, 1, 1, 1, 1, 1, 1], False), False)
sketch2.addGeometry(Part.BSplineCurve([V(23.194787, -3.589899, 0), V(23.103101, -3.588173, 0), V(22.921657, -3.584756, 0), V(22.652604, -3.550452, 0), V(22.391604, -3.494395, 0), V(22.136145, -3.418541, 0), V(21.89164, -3.315325, 0), V(21.650963, -3.195835, 0), V(21.420932, -3.049574, 0), V(21.197464, -2.885469, 0), V(20.989483, -2.703787, 0), V(20.795982, -2.512028, 0), V(20.623486, -2.30783, 0), V(20.467208, -2.09447, 0), V(20.332304, -1.86902, 0), V(20.214546, -1.633655, 0), V(20.11463, -1.388066, 0), V(20.064982, -1.217614, 0), V(20.04014, -1.132327, 0)], [4, 1, 1, 1, 1, 1, 1, 1, 1, 1, 1, 1, 1, 1, 1, 1, 4], [0, 1.024319606, 2.027102035, 3.025350316, 4.005802111, 5.00026367, 5.987881639, 7.005602596, 8.042517216, 9.083927026, 10.089214625, 11.084353441, 12.06828073, 13.041928858, 14.016821737, 15.00770877, 16], False, 3, [1, 1, 1, 1, 1, 1, 1, 1, 1, 1, 1, 1, 1, 1, 1, 1, 1, 1, 1], False), False)
sketch2.addGeometry(Part.BSplineCurve([V(25.593846, -1.763257, 0), V(25.552392, -1.90729, 0), V(25.472698, -2.184194, 0), V(25.287466, -2.56034, 0), V(25.056112, -2.88105, 0), V(24.773638, -3.141996, 0), V(24.44504, -3.34669, 0), V(24.068177, -3.48845, 0), V(23.646595, -3.576435, 0), V(23.349591, -3.585286, 0), V(23.194787, -3.589899, 0)], [4, 1, 1, 1, 1, 1, 1, 1, 4], [0, 1.090059168, 2.095632401, 3.037101401, 3.955032261, 4.878929692, 5.839099886, 6.873700383, 8], False, 3, [1, 1, 1, 1, 1, 1, 1, 1, 1, 1, 1], False), False)
sketch2.addGeometry(Part.BSplineCurve([V(25.726137, 0.348322, 0), V(25.725447, 0.221965, 0), V(25.724126, -0.019733, 0), V(25.71976, -0.365776, 0), V(25.710013, -0.679633, 0), V(25.694262, -0.960299, 0), V(25.677696, -1.208166, 0), V(25.654897, -1.422872, 0), V(25.628371, -1.604714, 0), V(25.604536, -1.714168, 0), V(25.593846, -1.763257, 0)], [4, 1, 1, 1, 1, 1, 1, 1, 4], [0, 1.430932559, 2.737130458, 3.918967929, 4.986496826, 5.920444988, 6.731744033, 7.431208747, 8], False, 3, [1, 1, 1, 1, 1, 1, 1, 1, 1, 1, 1], False), False)
sketch2.addGeometry(Part.LineSegment(V(25.726137, 0.348322, 0), V(25.726137, 4.713947, 0)), False)
sketch2.addGeometry(Part.LineSegment(V(25.726137, 4.713947, 0), V(26.865881, 4.713947, 0)), False)
sketch2.addGeometry(Part.LineSegment(V(26.865881, 4.713947, 0), V(26.865881, -0.025656, 0)), False)
sketch2.addGeometry(Part.BSplineCurve([V(23.395769, -4.729643, 0), V(23.567511, -4.723309, 0), V(23.903651, -4.710913, 0), V(24.393078, -4.612893, 0), V(24.850136, -4.445408, 0), V(25.273466, -4.216202, 0), V(25.65383, -3.930732, 0), V(25.990742, -3.601143, 0), V(26.265936, -3.219149, 0), V(26.453167, -2.866248, 0), V(26.57499, -2.552236, 0), V(26.652104, -2.282863, 0), V(26.717488, -1.982701, 0), V(26.774456, -1.651903, 0), V(26.812423, -1.288882, 0), V(26.84292, -0.895276, 0), V(26.864606, -0.471106, 0), V(26.865447, -0.177481, 0), V(26.865881, -0.025656, 0)], [4, 1, 1, 1, 1, 1, 1, 1, 1, 1, 1, 1, 1, 1, 1, 1, 4], [0, 1.235656852, 2.418478516, 3.575258207, 4.727955599, 5.870717718, 6.98870536, 8.107142894, 9.245821548, 9.854588956, 10.528768408, 11.260415777, 12.065282286, 12.943670737, 13.886611085, 14.907229059, 16], False, 3, [1, 1, 1, 1, 1, 1, 1, 1, 1, 1, 1, 1, 1, 1, 1, 1, 1, 1, 1], False), False)
sketch2.addGeometry(Part.BSplineCurve([V(19.864599, -2.813958, 0), V(19.986945, -2.96688, 0), V(20.225158, -3.264628, 0), V(20.626101, -3.653107, 0), V(21.037838, -3.989834, 0), V(21.47459, -4.257878, 0), V(21.928345, -4.469629, 0), V(22.401016, -4.619807, 0), V(22.892691, -4.712158, 0), V(23.226611, -4.723764, 0), V(23.395769, -4.729643, 0)], [4, 1, 1, 1, 1, 1, 1, 1, 4], [0, 1.125788106, 2.19196713, 3.20547328, 4.180437432, 5.132270164, 6.079753143, 7.027236121, 8], False, 3, [1, 1, 1, 1, 1, 1, 1, 1, 1, 1, 1], False), False)
sketch2.addGeometry(Part.LineSegment(V(19.864599, -2.813958, 0), V(19.864599, -8.311694, 0)), False)
sketch2.addConstraint(Sketcher.Constraint("Block", 1))
sketch2.addConstraint(Sketcher.Constraint("Block", 2))
sketch2.addConstraint(Sketcher.Constraint("Block", 3))
sketch2.addConstraint(Sketcher.Constraint("Block", 4))
sketch2.addConstraint(Sketcher.Constraint("Block", 5))
sketch2.addConstraint(Sketcher.Constraint("Block", 6))
sketch2.addConstraint(Sketcher.Constraint("Block", 7))
sketch2.addConstraint(Sketcher.Constraint("Block", 8))
sketch2.addConstraint(Sketcher.Constraint("Block", 10))
sketch2.addConstraint(Sketcher.Constraint("Block", 11))
sketch2.addConstraint(Sketcher.Constraint("Block", 12))
sketch2.addConstraint(Sketcher.Constraint("Block", 13))
sketch2.addConstraint(Sketcher.Constraint("Block", 14))
sketch2.addConstraint(Sketcher.Constraint("Block", 15))
sketch2.addConstraint(Sketcher.Constraint("Block", 16))
sketch2.addConstraint(Sketcher.Constraint("Block", 17))
sketch2.addConstraint(Sketcher.Constraint("Block", 31))
sketch2.addConstraint(Sketcher.Constraint("Block", 32))
sketch2.addConstraint(Sketcher.Constraint("Block", 33))
sketch2.addConstraint(Sketcher.Constraint("Block", 34))
sketch2.addConstraint(Sketcher.Constraint("Block", 52))
sketch2.addConstraint(Sketcher.Constraint("Block", 53))
sketch2.addConstraint(Sketcher.Constraint("Block", 54))
sketch2.addConstraint(Sketcher.Constraint("Block", 55))
sketch2.addConstraint(Sketcher.Constraint("Block", 57))
sketch2.addConstraint(Sketcher.Constraint("Block", 58))
sketch2.addConstraint(Sketcher.Constraint("Block", 59))
sketch2.addConstraint(Sketcher.Constraint("Block", 60))
sketch2.addConstraint(Sketcher.Constraint("Block", 65))
sketch2.addConstraint(Sketcher.Constraint("Block", 66))
sketch2.addConstraint(Sketcher.Constraint("Block", 67))
sketch2.addConstraint(Sketcher.Constraint("Block", 68))
sketch2.addConstraint(Sketcher.Constraint("Block", 72))
sketch2.addConstraint(Sketcher.Constraint("Block", 73))
sketch2.addConstraint(Sketcher.Constraint("Coincident", 0, 2, 1, 2))
sketch2.addConstraint(Sketcher.Constraint("Coincident", 8, 1, 9, 1))
sketch2.addConstraint(Sketcher.Constraint("Coincident", 9, 2, 10, 2))
sketch2.addConstraint(Sketcher.Constraint("Coincident", 17, 1, 0, 1))
sketch2.addConstraint(Sketcher.Constraint("Coincident", 51, 2, 52, 2))
sketch2.addConstraint(Sketcher.Constraint("Coincident", 55, 1, 56, 1))
sketch2.addConstraint(Sketcher.Constraint("Coincident", 56, 2, 57, 2))
sketch2.addConstraint(Sketcher.Constraint("Coincident", 60, 1, 51, 1))
sketch2.addConstraint(Sketcher.Constraint("Coincident", 61, 2, 62, 1))
sketch2.addConstraint(Sketcher.Constraint("Coincident", 62, 2, 63, 1))
sketch2.addConstraint(Sketcher.Constraint("Coincident", 63, 2, 64, 1))
sketch2.addConstraint(Sketcher.Constraint("Coincident", 64, 2, 65, 2))
sketch2.addConstraint(Sketcher.Constraint("Coincident", 68, 1, 69, 1))
sketch2.addConstraint(Sketcher.Constraint("Coincident", 69, 2, 70, 1))
sketch2.addConstraint(Sketcher.Constraint("Coincident", 70, 2, 71, 1))
sketch2.addConstraint(Sketcher.Constraint("Coincident", 71, 2, 72, 2))
sketch2.addConstraint(Sketcher.Constraint("Coincident", 73, 1, 74, 1))
sketch2.addConstraint(Sketcher.Constraint("Coincident", 74, 2, 61, 1))
sketch2.addConstraint(Sketcher.Constraint("Horizontal", 18))
sketch2.addConstraint(Sketcher.Constraint("Horizontal", 20))
sketch2.addConstraint(Sketcher.Constraint("Horizontal", 23))
sketch2.addConstraint(Sketcher.Constraint("Horizontal", 25))
sketch2.addConstraint(Sketcher.Constraint("Horizontal", 28))
sketch2.addConstraint(Sketcher.Constraint("Vertical", 35))
sketch2.addConstraint(Sketcher.Constraint("Horizontal", 36))
sketch2.addConstraint(Sketcher.Constraint("Vertical", 37))
sketch2.addConstraint(Sketcher.Constraint("Horizontal", 38))
sketch2.addConstraint(Sketcher.Constraint("Horizontal", 39))
sketch2.addConstraint(Sketcher.Constraint("Vertical", 40))
sketch2.addConstraint(Sketcher.Constraint("Horizontal", 41))
sketch2.addConstraint(Sketcher.Constraint("Vertical", 42))
sketch2.addConstraint(Sketcher.Constraint("Horizontal", 43))
sketch2.addConstraint(Sketcher.Constraint("Vertical", 44))
sketch2.addConstraint(Sketcher.Constraint("Horizontal", 45))
sketch2.addConstraint(Sketcher.Constraint("Vertical", 46))
sketch2.addConstraint(Sketcher.Constraint("Horizontal", 47))
sketch2.addConstraint(Sketcher.Constraint("Vertical", 48))
sketch2.addConstraint(Sketcher.Constraint("Horizontal", 49))
sketch2.addConstraint(Sketcher.Constraint("Vertical", 50))
sketch2.addConstraint(Sketcher.Constraint("Horizontal", 61))
sketch2.addConstraint(Sketcher.Constraint("Vertical", 62))
sketch2.addConstraint(Sketcher.Constraint("Horizontal", 63))
sketch2.addConstraint(Sketcher.Constraint("Vertical", 64))
sketch2.addConstraint(Sketcher.Constraint("Vertical", 69))
sketch2.addConstraint(Sketcher.Constraint("Horizontal", 70))
sketch2.addConstraint(Sketcher.Constraint("Vertical", 71))
sketch2.addConstraint(Sketcher.Constraint("Vertical", 74))
sketch2.addConstraint(Sketcher.Constraint("DistanceX", 46, 2, 51, 2, Q("12.7 mm")))
sketch2.addConstraint(Sketcher.Constraint("DistanceX", 49, 2, 51, 2, Q("12.7 mm")))
sketch2.addConstraint(Sketcher.Constraint("DistanceX", 9, 2, 18, 2, Q("6.35 mm")))
sketch2.addConstraint(Sketcher.Constraint("DistanceX", 24, 2, 39, 2, Q("6.35 mm")))
sketch2.addConstraint(Sketcher.Constraint("DistanceY", 35, 1, 35, 2, Q("9.280769 mm")))
sketch2.addConstraint(Sketcher.Constraint("DistanceY", 40, 1, 40, 2, Q("3.744872 mm")))
sketch2.addConstraint(Sketcher.Constraint("DistanceY", 50, 2, 50, 1, Q("3.744872 mm")))
sketch2.addConstraint(Sketcher.Constraint("DistanceY", 62, 1, 62, 2, Q("13.025641 mm")))
sketch2.addConstraint(Sketcher.Constraint("DistanceY", 64, 2, 64, 1, Q("3.355629 mm")))
sketch2.addConstraint(Sketcher.Constraint("DistanceX", 20, 2, 21, 2, Q("3.0249 mm")))
sketch2.addConstraint(Sketcher.Constraint("DistanceX", 19, 2, 23, 2, Q("6.436498 mm")))
sketch2.addConstraint(Sketcher.Constraint("Distance", 19, Q("10.047331 mm")))
sketch2.addConstraint(Sketcher.Constraint("Distance", 27, Q("7.305041 mm")))
sketch2.addConstraint(Sketcher.Constraint("DistanceX", 18, 2, 18, 1, Q("1.221154 mm")))
sketch2.addConstraint(Sketcher.Constraint("DistanceX", 20, 1, 20, 2, Q("0.208614 mm")))
sketch2.addConstraint(Sketcher.Constraint("DistanceX", 23, 1, 23, 2, Q("0.234054 mm")))
sketch2.addConstraint(Sketcher.Constraint("DistanceX", 25, 2, 25, 1, Q("1.198257 mm")))
sketch2.addConstraint(Sketcher.Constraint("DistanceX", 28, 2, 28, 1, Q("0.195893 mm")))
sketch2.addConstraint(Sketcher.Constraint("DistanceX", 36, 1, 36, 2, Q("1.139744 mm")))
sketch2.addConstraint(Sketcher.Constraint("DistanceX", 39, 2, 39, 1, Q("1.139744 mm")))
sketch2.addConstraint(Sketcher.Constraint("DistanceX", 41, 2, 41, 1, Q("1.628205 mm")))
sketch2.addConstraint(Sketcher.Constraint("DistanceX", 43, 1, 43, 2, Q("1.628205 mm")))
sketch2.addConstraint(Sketcher.Constraint("DistanceX", 47, 1, 47, 2, Q("1.628205 mm")))
sketch2.addConstraint(Sketcher.Constraint("DistanceX", 61, 2, 61, 1, Q("1.139744 mm")))
sketch2.addConstraint(Sketcher.Constraint("DistanceY", 42, 1, 42, 2, Q("1.139744 mm")))
sketch2.addConstraint(Sketcher.Constraint("DistanceY", 44, 1, 44, 2, Q("8.141026 mm")))
sketch2.addConstraint(Sketcher.Constraint("DistanceY", 46, 2, 46, 1, Q("8.141026 mm")))
sketch2.addConstraint(Sketcher.Constraint("DistanceY", 69, 1, 69, 2, Q("4.365625 mm")))
sketch2.addConstraint(Sketcher.Constraint("DistanceX", 19, 2, -1, 1, Q("14.060581 mm")))
sketch2.addConstraint(Sketcher.Constraint("DistanceY", -1, 1, 26, 2, Q("2.108819 mm")))
sketch2.addConstraint(Sketcher.Constraint("DistanceY", -1, 1, 29, 2, Q("2.108819 mm")))
sketch2.addConstraint(Sketcher.Constraint("DistanceX", 35, 2, -1, 1, Q("2.441811 mm")))
sketch2.addConstraint(Sketcher.Constraint("DistanceY", 42, 2, -1, 1, Q("3.427079 mm")))
sketch2.addConstraint(Sketcher.Constraint("DistanceY", 18, 2, 9, 2, Q("8.186819 mm")))
sketch2.addConstraint(Sketcher.Constraint("DistanceY", 21, 2, 20, 2, Q("6.675641 mm")))
sketch2.addConstraint(Sketcher.Constraint("DistanceY", 21, 2, 22, 2, Q("6.675641 mm")))
sketch2.addConstraint(Sketcher.Constraint("DistanceY", 24, 2, 21, 2, Q("2.605128 mm")))
sketch2.addConstraint(Sketcher.Constraint("DistanceX", 22, 2, 26, 2, Q("0.124659 mm")))
sketch2.addConstraint(Sketcher.Constraint("DistanceY", 27, 2, 21, 2, Q("2.605128 mm")))
sketch2.addConstraint(Sketcher.Constraint("DistanceX", 29, 2, 20, 2, Q("0.06869 mm")))
sketch2.addConstraint(Sketcher.Constraint("DistanceY", 26, 2, 35, 2, Q("2.605128 mm")))
pocket1 = doc.addObject("PartDesign::Pocket", "Pocket")
body.addObject(pocket1)
pocket1.Profile = sketch2
pocket1.Length = 2
pocket1.Reversed = True

doc.recompute()
